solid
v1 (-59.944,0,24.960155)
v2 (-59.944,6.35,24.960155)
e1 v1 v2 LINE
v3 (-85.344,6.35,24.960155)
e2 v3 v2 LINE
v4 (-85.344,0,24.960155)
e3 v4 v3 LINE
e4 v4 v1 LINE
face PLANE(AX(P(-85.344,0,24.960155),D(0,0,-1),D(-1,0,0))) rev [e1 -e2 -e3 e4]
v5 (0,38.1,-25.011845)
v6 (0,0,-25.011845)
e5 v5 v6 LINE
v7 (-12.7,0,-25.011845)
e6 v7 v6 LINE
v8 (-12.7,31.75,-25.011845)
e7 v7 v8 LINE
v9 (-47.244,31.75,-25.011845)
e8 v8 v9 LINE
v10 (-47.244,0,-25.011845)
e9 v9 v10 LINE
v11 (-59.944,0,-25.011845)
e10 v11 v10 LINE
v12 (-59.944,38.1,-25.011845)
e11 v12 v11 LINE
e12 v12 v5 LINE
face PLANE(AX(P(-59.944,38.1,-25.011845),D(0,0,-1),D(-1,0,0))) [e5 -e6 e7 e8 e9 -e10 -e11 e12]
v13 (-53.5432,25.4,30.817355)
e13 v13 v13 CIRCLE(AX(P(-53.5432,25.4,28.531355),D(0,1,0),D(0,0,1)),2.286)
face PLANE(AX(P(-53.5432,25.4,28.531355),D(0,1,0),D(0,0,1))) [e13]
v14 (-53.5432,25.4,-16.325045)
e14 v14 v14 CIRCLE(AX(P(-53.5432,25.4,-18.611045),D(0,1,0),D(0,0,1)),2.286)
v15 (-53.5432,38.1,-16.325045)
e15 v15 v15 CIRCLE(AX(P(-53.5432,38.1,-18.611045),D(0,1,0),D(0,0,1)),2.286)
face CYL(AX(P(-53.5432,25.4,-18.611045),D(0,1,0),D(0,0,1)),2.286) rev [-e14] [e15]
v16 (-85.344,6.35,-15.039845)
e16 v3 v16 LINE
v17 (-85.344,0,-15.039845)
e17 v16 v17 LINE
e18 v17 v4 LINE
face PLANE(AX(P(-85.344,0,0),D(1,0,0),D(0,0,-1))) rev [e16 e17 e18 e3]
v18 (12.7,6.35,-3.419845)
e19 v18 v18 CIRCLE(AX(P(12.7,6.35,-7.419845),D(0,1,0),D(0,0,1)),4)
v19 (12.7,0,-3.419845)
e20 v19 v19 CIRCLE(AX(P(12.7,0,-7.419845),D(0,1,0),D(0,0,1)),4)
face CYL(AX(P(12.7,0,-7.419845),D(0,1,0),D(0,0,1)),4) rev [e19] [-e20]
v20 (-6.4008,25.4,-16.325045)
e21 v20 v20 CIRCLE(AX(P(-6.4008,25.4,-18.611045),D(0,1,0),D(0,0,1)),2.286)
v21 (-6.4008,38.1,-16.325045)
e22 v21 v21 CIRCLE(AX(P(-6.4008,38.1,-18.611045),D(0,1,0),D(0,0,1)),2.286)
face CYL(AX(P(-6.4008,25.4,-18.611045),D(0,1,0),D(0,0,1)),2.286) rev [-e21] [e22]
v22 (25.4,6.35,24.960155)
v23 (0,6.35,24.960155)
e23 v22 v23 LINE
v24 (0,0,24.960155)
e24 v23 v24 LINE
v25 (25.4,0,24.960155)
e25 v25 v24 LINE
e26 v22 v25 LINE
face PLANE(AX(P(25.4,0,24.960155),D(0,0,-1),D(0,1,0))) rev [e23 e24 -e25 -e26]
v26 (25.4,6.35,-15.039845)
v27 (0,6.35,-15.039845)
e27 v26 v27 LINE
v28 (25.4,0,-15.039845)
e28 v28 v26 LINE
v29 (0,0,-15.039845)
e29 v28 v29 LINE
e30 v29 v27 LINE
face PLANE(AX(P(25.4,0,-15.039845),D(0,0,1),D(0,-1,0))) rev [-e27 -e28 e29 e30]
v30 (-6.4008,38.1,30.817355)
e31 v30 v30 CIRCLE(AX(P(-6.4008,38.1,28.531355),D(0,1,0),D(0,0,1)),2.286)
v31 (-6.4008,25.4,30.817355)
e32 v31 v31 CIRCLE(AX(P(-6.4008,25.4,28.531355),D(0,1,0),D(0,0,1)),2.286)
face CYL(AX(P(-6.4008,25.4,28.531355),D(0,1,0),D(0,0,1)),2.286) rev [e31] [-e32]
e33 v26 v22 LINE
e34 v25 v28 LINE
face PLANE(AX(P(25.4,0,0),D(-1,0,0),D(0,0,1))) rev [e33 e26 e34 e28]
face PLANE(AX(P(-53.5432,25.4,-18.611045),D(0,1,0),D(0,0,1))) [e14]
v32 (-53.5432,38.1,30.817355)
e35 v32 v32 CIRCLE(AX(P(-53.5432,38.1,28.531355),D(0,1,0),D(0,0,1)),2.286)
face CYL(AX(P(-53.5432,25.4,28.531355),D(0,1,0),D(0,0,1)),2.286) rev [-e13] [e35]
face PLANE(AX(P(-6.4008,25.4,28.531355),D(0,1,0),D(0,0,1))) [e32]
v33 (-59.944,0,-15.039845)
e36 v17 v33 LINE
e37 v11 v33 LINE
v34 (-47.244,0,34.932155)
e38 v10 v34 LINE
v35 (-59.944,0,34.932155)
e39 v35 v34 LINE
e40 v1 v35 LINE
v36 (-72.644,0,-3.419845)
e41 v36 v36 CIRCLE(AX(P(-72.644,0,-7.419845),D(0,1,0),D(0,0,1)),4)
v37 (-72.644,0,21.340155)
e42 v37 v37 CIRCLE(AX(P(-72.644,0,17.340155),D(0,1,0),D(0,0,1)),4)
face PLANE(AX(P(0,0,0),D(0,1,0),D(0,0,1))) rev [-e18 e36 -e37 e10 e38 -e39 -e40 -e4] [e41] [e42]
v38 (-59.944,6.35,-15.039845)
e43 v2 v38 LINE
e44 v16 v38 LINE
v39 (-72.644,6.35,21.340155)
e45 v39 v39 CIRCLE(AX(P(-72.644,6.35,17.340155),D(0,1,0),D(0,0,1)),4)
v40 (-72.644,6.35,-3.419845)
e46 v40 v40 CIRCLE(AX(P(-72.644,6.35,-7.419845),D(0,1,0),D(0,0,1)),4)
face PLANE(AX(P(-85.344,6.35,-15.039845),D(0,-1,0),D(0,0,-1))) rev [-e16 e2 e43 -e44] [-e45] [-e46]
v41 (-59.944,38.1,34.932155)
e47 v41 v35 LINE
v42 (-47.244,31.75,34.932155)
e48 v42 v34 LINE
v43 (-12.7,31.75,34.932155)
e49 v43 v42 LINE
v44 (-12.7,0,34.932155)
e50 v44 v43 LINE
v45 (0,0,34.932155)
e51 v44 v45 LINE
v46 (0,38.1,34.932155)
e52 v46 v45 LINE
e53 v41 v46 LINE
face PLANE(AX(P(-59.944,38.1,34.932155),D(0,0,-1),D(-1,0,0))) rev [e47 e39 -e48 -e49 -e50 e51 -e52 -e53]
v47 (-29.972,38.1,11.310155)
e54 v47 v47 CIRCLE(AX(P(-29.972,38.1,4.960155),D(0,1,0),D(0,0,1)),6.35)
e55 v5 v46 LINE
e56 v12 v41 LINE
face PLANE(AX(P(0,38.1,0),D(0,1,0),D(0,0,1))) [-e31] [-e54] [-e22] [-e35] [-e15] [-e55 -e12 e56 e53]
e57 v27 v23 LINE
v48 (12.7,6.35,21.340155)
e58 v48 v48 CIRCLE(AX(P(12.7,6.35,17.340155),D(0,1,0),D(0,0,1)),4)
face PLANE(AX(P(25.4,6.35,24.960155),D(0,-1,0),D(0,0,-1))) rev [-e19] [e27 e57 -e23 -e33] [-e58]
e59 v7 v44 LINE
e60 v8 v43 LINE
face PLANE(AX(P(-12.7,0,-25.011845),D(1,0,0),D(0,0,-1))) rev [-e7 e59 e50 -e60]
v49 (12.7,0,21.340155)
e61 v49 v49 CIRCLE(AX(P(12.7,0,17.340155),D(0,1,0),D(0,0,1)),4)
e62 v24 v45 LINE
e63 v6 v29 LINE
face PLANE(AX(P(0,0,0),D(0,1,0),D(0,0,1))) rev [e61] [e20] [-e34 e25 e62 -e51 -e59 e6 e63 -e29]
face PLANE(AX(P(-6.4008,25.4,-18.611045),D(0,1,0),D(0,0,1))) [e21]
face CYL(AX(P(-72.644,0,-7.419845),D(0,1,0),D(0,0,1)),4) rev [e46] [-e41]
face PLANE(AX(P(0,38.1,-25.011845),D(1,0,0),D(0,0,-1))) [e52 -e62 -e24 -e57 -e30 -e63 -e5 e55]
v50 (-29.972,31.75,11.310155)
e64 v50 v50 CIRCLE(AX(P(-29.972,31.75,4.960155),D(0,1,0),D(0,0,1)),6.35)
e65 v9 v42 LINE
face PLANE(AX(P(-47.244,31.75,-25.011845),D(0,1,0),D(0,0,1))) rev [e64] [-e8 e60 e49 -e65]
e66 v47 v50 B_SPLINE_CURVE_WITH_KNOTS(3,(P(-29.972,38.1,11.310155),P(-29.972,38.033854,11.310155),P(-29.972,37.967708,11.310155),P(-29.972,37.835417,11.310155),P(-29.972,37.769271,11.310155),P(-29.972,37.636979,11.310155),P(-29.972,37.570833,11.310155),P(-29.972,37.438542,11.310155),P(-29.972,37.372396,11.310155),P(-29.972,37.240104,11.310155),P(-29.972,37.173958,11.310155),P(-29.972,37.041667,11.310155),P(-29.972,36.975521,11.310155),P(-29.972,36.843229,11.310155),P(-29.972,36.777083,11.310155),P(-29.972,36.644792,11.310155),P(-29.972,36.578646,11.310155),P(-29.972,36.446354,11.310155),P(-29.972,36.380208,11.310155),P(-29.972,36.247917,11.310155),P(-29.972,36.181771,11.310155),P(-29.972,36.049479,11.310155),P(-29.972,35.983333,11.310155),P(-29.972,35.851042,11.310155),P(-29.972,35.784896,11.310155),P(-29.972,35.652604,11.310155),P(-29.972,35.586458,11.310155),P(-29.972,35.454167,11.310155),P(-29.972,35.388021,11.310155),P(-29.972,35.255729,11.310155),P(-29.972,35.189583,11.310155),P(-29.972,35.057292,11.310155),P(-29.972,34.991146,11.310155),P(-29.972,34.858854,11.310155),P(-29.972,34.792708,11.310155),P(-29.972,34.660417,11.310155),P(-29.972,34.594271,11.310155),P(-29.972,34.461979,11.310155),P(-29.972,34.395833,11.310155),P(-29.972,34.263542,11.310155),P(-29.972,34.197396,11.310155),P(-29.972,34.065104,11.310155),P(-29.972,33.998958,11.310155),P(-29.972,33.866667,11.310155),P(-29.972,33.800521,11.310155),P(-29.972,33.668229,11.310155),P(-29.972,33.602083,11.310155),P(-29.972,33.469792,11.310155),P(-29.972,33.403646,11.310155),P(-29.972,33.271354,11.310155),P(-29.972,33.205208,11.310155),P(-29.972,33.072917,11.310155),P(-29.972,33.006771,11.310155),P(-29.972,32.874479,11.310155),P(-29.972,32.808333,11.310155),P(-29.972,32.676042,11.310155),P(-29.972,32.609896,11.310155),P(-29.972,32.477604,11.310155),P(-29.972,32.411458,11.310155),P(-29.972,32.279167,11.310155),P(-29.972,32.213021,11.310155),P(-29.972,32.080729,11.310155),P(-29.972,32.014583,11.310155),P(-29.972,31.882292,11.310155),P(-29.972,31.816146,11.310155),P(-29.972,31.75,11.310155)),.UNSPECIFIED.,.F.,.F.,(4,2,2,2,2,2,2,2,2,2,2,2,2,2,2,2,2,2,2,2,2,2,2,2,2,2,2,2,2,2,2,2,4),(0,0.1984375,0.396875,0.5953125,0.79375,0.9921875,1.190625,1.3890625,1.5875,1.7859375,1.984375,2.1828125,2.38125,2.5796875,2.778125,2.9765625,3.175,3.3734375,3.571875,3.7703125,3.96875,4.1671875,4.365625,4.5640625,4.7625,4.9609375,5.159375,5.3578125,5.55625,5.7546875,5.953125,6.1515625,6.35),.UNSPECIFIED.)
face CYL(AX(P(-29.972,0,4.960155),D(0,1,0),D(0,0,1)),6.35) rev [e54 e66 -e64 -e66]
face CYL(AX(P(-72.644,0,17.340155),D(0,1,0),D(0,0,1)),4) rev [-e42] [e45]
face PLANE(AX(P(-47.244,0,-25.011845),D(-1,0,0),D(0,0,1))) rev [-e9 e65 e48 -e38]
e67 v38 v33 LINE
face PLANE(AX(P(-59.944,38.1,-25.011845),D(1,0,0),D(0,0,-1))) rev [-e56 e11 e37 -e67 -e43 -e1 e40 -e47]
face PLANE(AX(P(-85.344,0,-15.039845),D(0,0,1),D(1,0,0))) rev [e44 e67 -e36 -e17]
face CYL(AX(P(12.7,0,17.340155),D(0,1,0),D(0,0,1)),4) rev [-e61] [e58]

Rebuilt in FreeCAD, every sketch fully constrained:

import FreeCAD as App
import Part
import Sketcher
Q = App.Units.Quantity

doc = App.newDocument("Part")
params = doc.addObject("Spreadsheet::Sheet", "Params")
for row, (alias, value) in enumerate([
    ("sketch1_width", "2.36 in"),
    ("pad1_length", "1.5 in"),
    ("sketch2_width", "1.36 in"),
    ("sketch2_height", "1.25 in"),
    ("sketch3_diameter", "0.5 in"),
    ("sketch4_width", "0.25 in"),
    ("pad2_length", "1 in"),
    ("sketch5_width", "0.25 in"),
    ("pad3_length", "1 in"),
    ("sketch7_diameter", "0.18 in"),
    ("pocket4_length", "0.5 in"),
], start=1):
    params.set(f"A{row}", alias)
    params.set(f"B{row}", "=" + value)
    params.setAlias(f"B{row}", alias)

body = doc.addObject("PartDesign::Body", "Body")

# Sketch on XZ plane
sketch1 = body.newObject("Sketcher::SketchObject", "Sketch")
sketch1.AttachmentSupport = (doc.getObject("XZ_Plane"), [""])
sketch1.MapMode = "FlatFace"
sketch1.addGeometry([
    Part.LineSegment(App.Vector(-60, -25, 0), App.Vector(-60, 35, 0)),
    Part.LineSegment(App.Vector(-60, 35, 0), App.Vector(0, 35, 0)),
    Part.LineSegment(App.Vector(0, 35, 0), App.Vector(0, -25, 0)),
    Part.LineSegment(App.Vector(0, -25, 0), App.Vector(-60, -25, 0)),
], False)
sketch1.addConstraint([
    Sketcher.Constraint("Coincident", 0, 2, 1, 1),
    Sketcher.Constraint("Coincident", 1, 2, 2, 1),
    Sketcher.Constraint("Coincident", 2, 2, 3, 1),
    Sketcher.Constraint("Coincident", 3, 2, 0, 1),
    Sketcher.Constraint("Vertical", 0),
    Sketcher.Constraint("Horizontal", 1),
    Sketcher.Constraint("Vertical", 2),
    Sketcher.Constraint("Horizontal", 3),
    Sketcher.Constraint("PointOnObject", 1, 2, -2),
    Sketcher.Constraint("Equal", 3, 0),
    Sketcher.Constraint("DistanceX", 1, 1, 1, 2, Q("2.36 in")),
    Sketcher.Constraint("DistanceY", -1, 1, 0, 2, Q("34.932155 mm")),
])
sketch1.setExpression("Constraints[10]", "Params.sketch1_width")
pad1 = body.newObject("PartDesign::Pad", "Pad")
pad1.Profile = sketch1
pad1.setExpression("Length", "Params.pad1_length")
pad1.Reversed = True

# Sketch on XY plane
sketch2 = body.newObject("Sketcher::SketchObject", "Sketch001")
sketch2.AttachmentSupport = (doc.getObject("XY_Plane"), [""])
sketch2.MapMode = "FlatFace"
sketch2.AttachmentOffset = App.Placement(App.Vector(0, 0, 34.932155), App.Rotation())
sketch2.addGeometry([
    Part.LineSegment(App.Vector(-47, 32, 0), App.Vector(-47, 0, 0)),
    Part.LineSegment(App.Vector(-47, 0, 0), App.Vector(-13, 0, 0)),
    Part.LineSegment(App.Vector(-13, 0, 0), App.Vector(-13, 32, 0)),
    Part.LineSegment(App.Vector(-13, 32, 0), App.Vector(-47, 32, 0)),
], False)
sketch2.addConstraint([
    Sketcher.Constraint("Coincident", 0, 2, 1, 1),
    Sketcher.Constraint("Coincident", 1, 2, 2, 1),
    Sketcher.Constraint("Coincident", 2, 2, 3, 1),
    Sketcher.Constraint("Coincident", 3, 2, 0, 1),
    Sketcher.Constraint("Vertical", 0),
    Sketcher.Constraint("Horizontal", 1),
    Sketcher.Constraint("Vertical", 2),
    Sketcher.Constraint("Horizontal", 3),
    Sketcher.Constraint("PointOnObject", 0, 2, -1),
    Sketcher.Constraint("DistanceX", 1, 1, 1, 2, Q("1.36 in")),
    Sketcher.Constraint("DistanceY", 0, 2, 0, 1, Q("1.25 in")),
    Sketcher.Constraint("DistanceX", 1, 2, -1, 1, Q("0.5 in")),
])
sketch2.setExpression("Constraints[9]", "Params.sketch2_width")
sketch2.setExpression("Constraints[10]", "Params.sketch2_height")
pocket1 = body.newObject("PartDesign::Pocket", "Pocket")
pocket1.Profile = sketch2
pocket1.Type = "ThroughAll"

# Sketch on XZ plane
sketch3 = body.newObject("Sketcher::SketchObject", "Sketch002")
sketch3.AttachmentSupport = (doc.getObject("XZ_Plane"), [""])
sketch3.MapMode = "FlatFace"
sketch3.AttachmentOffset = App.Placement(App.Vector(0, 0, -1.5 * 25.4), App.Rotation())
sketch3.addGeometry(Part.Circle(App.Vector(-30, 5, 0), App.Vector(0, 0, 1), 6), False)
sketch3.addConstraint([
    Sketcher.Constraint("Diameter", 0, Q("0.5 in")),
    Sketcher.Constraint("DistanceX", 0, 3, -1, 1, Q("1.18 in")),
    Sketcher.Constraint("DistanceY", -1, 1, 0, 3, Q("4.960155 mm")),
])
sketch3.setExpression("Constraints[0]", "Params.sketch3_diameter")
pocket2 = body.newObject("PartDesign::Pocket", "Pocket001")
pocket2.Profile = sketch3
pocket2.Type = "ThroughAll"
pocket2.Reversed = True

# Sketch on YZ plane
sketch4 = body.newObject("Sketcher::SketchObject", "Sketch003")
sketch4.AttachmentSupport = (doc.getObject("YZ_Plane"), [""])
sketch4.MapMode = "FlatFace"
sketch4.addGeometry([
    Part.LineSegment(App.Vector(6, 25, 0), App.Vector(0, 25, 0)),
    Part.LineSegment(App.Vector(0, 25, 0), App.Vector(0, -15, 0)),
    Part.LineSegment(App.Vector(0, -15, 0), App.Vector(6, -15, 0)),
    Part.LineSegment(App.Vector(6, -15, 0), App.Vector(6, 25, 0)),
], False)
sketch4.addConstraint([
    Sketcher.Constraint("Coincident", 0, 2, 1, 1),
    Sketcher.Constraint("Coincident", 1, 2, 2, 1),
    Sketcher.Constraint("Coincident", 2, 2, 3, 1),
    Sketcher.Constraint("Coincident", 3, 2, 0, 1),
    Sketcher.Constraint("Horizontal", 0),
    Sketcher.Constraint("Vertical", 1),
    Sketcher.Constraint("Horizontal", 2),
    Sketcher.Constraint("Vertical", 3),
    Sketcher.Constraint("PointOnObject", 0, 2, -2),
    Sketcher.Constraint("DistanceX", 0, 2, 0, 1, Q("0.25 in")),
    Sketcher.Constraint("DistanceY", 1, 2, 1, 1, Q("40 mm")),
    Sketcher.Constraint("DistanceY", -1, 1, 0, 2, Q("24.960155 mm")),
])
sketch4.setExpression("Constraints[9]", "Params.sketch4_width")
pad2 = body.newObject("PartDesign::Pad", "Pad001")
pad2.Profile = sketch4
pad2.setExpression("Length", "Params.pad2_length")

# Sketch on YZ plane
sketch5 = body.newObject("Sketcher::SketchObject", "Sketch004")
sketch5.AttachmentSupport = (doc.getObject("YZ_Plane"), [""])
sketch5.MapMode = "FlatFace"
sketch5.AttachmentOffset = App.Placement(App.Vector(0, 0, -2.36 * 25.4), App.Rotation())
sketch5.addGeometry([
    Part.LineSegment(App.Vector(6, -15, 0), App.Vector(0, -15, 0)),
    Part.LineSegment(App.Vector(0, -15, 0), App.Vector(0, 25, 0)),
    Part.LineSegment(App.Vector(0, 25, 0), App.Vector(6, 25, 0)),
    Part.LineSegment(App.Vector(6, 25, 0), App.Vector(6, -15, 0)),
], False)
sketch5.addConstraint([
    Sketcher.Constraint("Coincident", 0, 2, 1, 1),
    Sketcher.Constraint("Coincident", 1, 2, 2, 1),
    Sketcher.Constraint("Coincident", 2, 2, 3, 1),
    Sketcher.Constraint("Coincident", 3, 2, 0, 1),
    Sketcher.Constraint("Horizontal", 0),
    Sketcher.Constraint("Vertical", 1),
    Sketcher.Constraint("Horizontal", 2),
    Sketcher.Constraint("Vertical", 3),
    Sketcher.Constraint("PointOnObject", 0, 2, -2),
    Sketcher.Constraint("DistanceX", 0, 2, 0, 1, Q("0.25 in")),
    Sketcher.Constraint("DistanceY", 1, 1, 1, 2, Q("40 mm")),
    Sketcher.Constraint("DistanceY", 0, 2, -1, 1, Q("15.039845 mm")),
])
sketch5.setExpression("Constraints[9]", "Params.sketch5_width")
pad3 = body.newObject("PartDesign::Pad", "Pad002")
pad3.Profile = sketch5
pad3.setExpression("Length", "Params.pad3_length")
pad3.Reversed = True

# Sketch on XZ plane
sketch6 = body.newObject("Sketcher::SketchObject", "Sketch005")
sketch6.AttachmentSupport = (doc.getObject("XZ_Plane"), [""])
sketch6.MapMode = "FlatFace"
sketch6.AttachmentOffset = App.Placement(App.Vector(0, 0, -0.25 * 25.4), App.Rotation())
sketch6.addGeometry([
    Part.Circle(App.Vector(-72.6, -7.4, 0), App.Vector(0, 0, 1), 4),
    Part.Circle(App.Vector(-72.6, 17.3, 0), App.Vector(0, 0, 1), 4),
    Part.Circle(App.Vector(12.7, -7.4, 0), App.Vector(0, 0, 1), 4),
    Part.Circle(App.Vector(12.7, 17.3, 0), App.Vector(0, 0, 1), 4),
], False)
sketch6.addConstraint([
    Sketcher.Constraint("Equal", 0, 1),
    Sketcher.Constraint("Equal", 1, 2),
    Sketcher.Constraint("Equal", 2, 3),
    Sketcher.Constraint("Horizontal", 0, 3, 2, 3),
    Sketcher.Constraint("Horizontal", 1, 3, 3, 3),
    Sketcher.Constraint("Vertical", 0, 3, 1, 3),
    Sketcher.Constraint("Vertical", 2, 3, 3, 3),
    Sketcher.Constraint("DistanceX", -1, 1, 2, 3, Q("0.5 in")),
    Sketcher.Constraint("Diameter", 0, Q("8 mm")),
    Sketcher.Constraint("DistanceX", 0, 3, -1, 1, Q("2.86 in")),
    Sketcher.Constraint("DistanceY", 0, 3, 1, 3, Q("24.76 mm")),
    Sketcher.Constraint("DistanceY", 0, 3, -1, 1, Q("7.419845 mm")),
])
pocket3 = body.newObject("PartDesign::Pocket", "Pocket002")
pocket3.Profile = sketch6
pocket3.Type = "ThroughAll"
pocket3.Reversed = True

# Sketch on XZ plane
sketch7 = body.newObject("Sketcher::SketchObject", "Sketch006")
sketch7.AttachmentSupport = (doc.getObject("XZ_Plane"), [""])
sketch7.MapMode = "FlatFace"
sketch7.AttachmentOffset = App.Placement(App.Vector(0, 0, -1.5 * 25.4), App.Rotation())
sketch7.addGeometry([
    Part.Circle(App.Vector(-53.5, -18.6, 0), App.Vector(0, 0, 1), 2.3),
    Part.Circle(App.Vector(-6.4, 28.5, 0), App.Vector(0, 0, 1), 2.3),
    Part.Circle(App.Vector(-53.5, 28.5, 0), App.Vector(0, 0, 1), 2.3),
    Part.Circle(App.Vector(-6.4, -18.6, 0), App.Vector(0, 0, 1), 2.3),
], False)
sketch7.addConstraint([
    Sketcher.Constraint("Equal", 0, 1),
    Sketcher.Constraint("Equal", 1, 2),
    Sketcher.Constraint("Equal", 2, 3),
    Sketcher.Constraint("Horizontal", 1, 3, 2, 3),
    Sketcher.Constraint("Horizontal", 0, 3, 3, 3),
    Sketcher.Constraint("Vertical", 0, 3, 2, 3),
    Sketcher.Constraint("Vertical", 1, 3, 3, 3),
    Sketcher.Constraint("Diameter", 0, Q("0.18 in")),
    Sketcher.Constraint("DistanceX", 0, 3, -1, 1, Q("2.108 in")),
    Sketcher.Constraint("DistanceX", 1, 3, -1, 1, Q("0.252 in")),
    Sketcher.Constraint("DistanceY", 0, 3, 1, 3, Q("1.856 in")),
    Sketcher.Constraint("DistanceY", 0, 3, -1, 1, Q("18.611045 mm")),
])
sketch7.setExpression("Constraints[7]", "Params.sketch7_diameter")
pocket4 = body.newObject("PartDesign::Pocket", "Pocket003")
pocket4.Profile = sketch7
pocket4.setExpression("Length", "Params.pocket4_length")
pocket4.Reversed = True

doc.recompute()
